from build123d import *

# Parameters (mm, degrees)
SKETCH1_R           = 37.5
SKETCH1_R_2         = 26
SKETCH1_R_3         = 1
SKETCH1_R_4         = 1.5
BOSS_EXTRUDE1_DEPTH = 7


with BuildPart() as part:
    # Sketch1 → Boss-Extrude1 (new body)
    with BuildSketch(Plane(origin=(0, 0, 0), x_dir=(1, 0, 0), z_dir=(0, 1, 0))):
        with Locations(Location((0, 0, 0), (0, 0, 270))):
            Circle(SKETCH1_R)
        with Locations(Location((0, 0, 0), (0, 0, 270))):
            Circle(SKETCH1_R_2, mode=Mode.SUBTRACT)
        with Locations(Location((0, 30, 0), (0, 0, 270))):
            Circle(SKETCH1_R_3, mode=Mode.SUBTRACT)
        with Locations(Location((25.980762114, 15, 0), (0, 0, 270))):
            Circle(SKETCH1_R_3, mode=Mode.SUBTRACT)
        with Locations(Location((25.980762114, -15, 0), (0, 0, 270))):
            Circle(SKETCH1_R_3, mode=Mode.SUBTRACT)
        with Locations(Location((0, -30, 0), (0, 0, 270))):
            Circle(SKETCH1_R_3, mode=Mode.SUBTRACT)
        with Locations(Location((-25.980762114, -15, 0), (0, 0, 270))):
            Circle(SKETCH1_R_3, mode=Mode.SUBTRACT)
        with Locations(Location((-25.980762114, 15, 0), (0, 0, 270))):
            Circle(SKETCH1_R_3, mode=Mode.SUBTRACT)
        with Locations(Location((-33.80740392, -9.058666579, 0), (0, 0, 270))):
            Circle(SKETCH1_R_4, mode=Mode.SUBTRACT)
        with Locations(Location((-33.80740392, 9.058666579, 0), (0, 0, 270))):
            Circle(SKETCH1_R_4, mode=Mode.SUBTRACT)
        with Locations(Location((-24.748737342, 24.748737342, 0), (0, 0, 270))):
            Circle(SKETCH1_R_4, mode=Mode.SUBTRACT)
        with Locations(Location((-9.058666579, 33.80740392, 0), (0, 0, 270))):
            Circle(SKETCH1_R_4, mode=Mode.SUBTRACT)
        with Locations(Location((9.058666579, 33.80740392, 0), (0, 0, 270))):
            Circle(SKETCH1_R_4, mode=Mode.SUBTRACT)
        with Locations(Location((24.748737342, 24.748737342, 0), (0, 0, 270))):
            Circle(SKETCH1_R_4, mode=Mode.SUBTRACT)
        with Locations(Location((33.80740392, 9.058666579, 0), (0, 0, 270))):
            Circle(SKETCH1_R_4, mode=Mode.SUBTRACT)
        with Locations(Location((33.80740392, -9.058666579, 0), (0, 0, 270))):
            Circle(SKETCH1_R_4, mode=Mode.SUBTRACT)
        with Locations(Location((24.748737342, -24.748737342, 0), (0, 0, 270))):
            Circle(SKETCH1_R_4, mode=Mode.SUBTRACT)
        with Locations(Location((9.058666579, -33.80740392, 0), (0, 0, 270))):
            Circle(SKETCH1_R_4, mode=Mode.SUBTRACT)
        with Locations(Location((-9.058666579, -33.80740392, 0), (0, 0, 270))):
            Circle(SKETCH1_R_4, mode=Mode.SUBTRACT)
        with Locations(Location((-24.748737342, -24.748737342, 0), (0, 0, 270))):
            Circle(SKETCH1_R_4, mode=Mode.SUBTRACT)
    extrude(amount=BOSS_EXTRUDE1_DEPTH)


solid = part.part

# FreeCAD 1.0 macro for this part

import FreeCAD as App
import Part
import Sketcher

V = App.Vector
Q = App.Units.Quantity

doc = App.newDocument("Part")
body = doc.addObject("PartDesign::Body", "Body")

# Sketch on XZ plane
sketch1 = body.newObject("Sketcher::SketchObject", "Sketch")
sketch1.AttachmentSupport = (doc.getObject("XZ_Plane"), [""])
sketch1.MapMode = "FlatFace"
sketch1.addGeometry(Part.Circle(V(0, 0, 0), V(0, 0, 1), 37.5), False)
sketch1.addGeometry(Part.Circle(V(-24.7, -24.7, 0), V(0, 0, 1), 1.5), False)
sketch1.addGeometry(Part.Circle(V(-33.8, -9.1, 0), V(0, 0, 1), 1.5), False)
sketch1.addGeometry(Part.Circle(V(-26, -15, 0), V(0, 0, 1), 1), False)
sketch1.addGeometry(Part.Circle(V(-9.1, -33.8, 0), V(0, 0, 1), 1.5), False)
sketch1.addGeometry(Part.Circle(V(0, -30, 0), V(0, 0, 1), 1), False)
sketch1.addGeometry(Part.Circle(V(-33.8, 9.1, 0), V(0, 0, 1), 1.5), False)
sketch1.addGeometry(Part.Circle(V(-26, 15, 0), V(0, 0, 1), 1), False)
sketch1.addGeometry(Part.Circle(V(-24.7, 24.7, 0), V(0, 0, 1), 1.5), False)
sketch1.addGeometry(Part.Circle(V(-9.1, 33.8, 0), V(0, 0, 1), 1.5), False)
sketch1.addGeometry(Part.Circle(V(9.1, -33.8, 0), V(0, 0, 1), 1.5), False)
sketch1.addGeometry(Part.Circle(V(24.7, -24.7, 0), V(0, 0, 1), 1.5), False)
sketch1.addGeometry(Part.Circle(V(26, -15, 0), V(0, 0, 1), 1), False)
sketch1.addGeometry(Part.Circle(V(33.8, -9.1, 0), V(0, 0, 1), 1.5), False)
sketch1.addGeometry(Part.Circle(V(0, 0, 0), V(0, 0, 1), 26), False)
sketch1.addGeometry(Part.Circle(V(0, 30, 0), V(0, 0, 1), 1), False)
sketch1.addGeometry(Part.Circle(V(9.1, 33.8, 0), V(0, 0, 1), 1.5), False)
sketch1.addGeometry(Part.Circle(V(26, 15, 0), V(0, 0, 1), 1), False)
sketch1.addGeometry(Part.Circle(V(33.8, 9.1, 0), V(0, 0, 1), 1.5), False)
sketch1.addGeometry(Part.Circle(V(24.7, 24.7, 0), V(0, 0, 1), 1.5), False)
sketch1.addConstraint(Sketcher.Constraint("Coincident", 0, 3, -1, 1))
sketch1.addConstraint(Sketcher.Constraint("Coincident", 14, 3, -1, 1))
sketch1.addConstraint(Sketcher.Constraint("Equal", 1, 2))
sketch1.addConstraint(Sketcher.Constraint("Equal", 2, 4))
sketch1.addConstraint(Sketcher.Constraint("Equal", 3, 5))
sketch1.addConstraint(Sketcher.Constraint("Equal", 4, 6))
sketch1.addConstraint(Sketcher.Constraint("Equal", 5, 7))
sketch1.addConstraint(Sketcher.Constraint("Equal", 6, 8))
sketch1.addConstraint(Sketcher.Constraint("Equal", 8, 9))
sketch1.addConstraint(Sketcher.Constraint("Equal", 9, 10))
sketch1.addConstraint(Sketcher.Constraint("Equal", 10, 11))
sketch1.addConstraint(Sketcher.Constraint("Equal", 7, 12))
sketch1.addConstraint(Sketcher.Constraint("Equal", 11, 13))
sketch1.addConstraint(Sketcher.Constraint("Equal", 12, 15))
sketch1.addConstraint(Sketcher.Constraint("Equal", 13, 16))
sketch1.addConstraint(Sketcher.Constraint("Equal", 15, 17))
sketch1.addConstraint(Sketcher.Constraint("Equal", 16, 18))
sketch1.addConstraint(Sketcher.Constraint("Equal", 18, 19))
sketch1.addConstraint(Sketcher.Constraint("Symmetric", 9, 3, 10, 3, -1, 1))
sketch1.addConstraint(Sketcher.Constraint("Symmetric", 8, 3, 11, 3, -1, 1))
sketch1.addConstraint(Sketcher.Constraint("Symmetric", 7, 3, 12, 3, -1, 1))
sketch1.addConstraint(Sketcher.Constraint("Symmetric", 6, 3, 13, 3, -1, 1))
sketch1.addConstraint(Sketcher.Constraint("Symmetric", 5, 3, 15, 3, -1, 1))
sketch1.addConstraint(Sketcher.Constraint("Symmetric", 4, 3, 16, 3, -1, 1))
sketch1.addConstraint(Sketcher.Constraint("Symmetric", 3, 3, 17, 3, -1, 1))
sketch1.addConstraint(Sketcher.Constraint("Symmetric", 2, 3, 18, 3, -1, 1))
sketch1.addConstraint(Sketcher.Constraint("Symmetric", 1, 3, 19, 3, -1, 1))
sketch1.addConstraint(Sketcher.Constraint("Symmetric", 4, 3, 10, 3, -2))
sketch1.addConstraint(Sketcher.Constraint("Symmetric", 1, 3, 11, 3, -2))
sketch1.addConstraint(Sketcher.Constraint("Symmetric", 3, 3, 12, 3, -2))
sketch1.addConstraint(Sketcher.Constraint("Symmetric", 2, 3, 13, 3, -2))
sketch1.addConstraint(Sketcher.Constraint("PointOnObject", 5, 3, -2))
sketch1.addConstraint(Sketcher.Constraint("Diameter", 0, Q("75 mm")))
sketch1.addConstraint(Sketcher.Constraint("Diameter", 1, Q("3 mm")))
sketch1.addConstraint(Sketcher.Constraint("Diameter", 3, Q("2 mm")))
sketch1.addConstraint(Sketcher.Constraint("Diameter", 14, Q("52 mm")))
sketch1.addConstraint(Sketcher.Constraint("DistanceY", 3, 3, -1, 1, Q("15 mm")))
sketch1.addConstraint(Sketcher.Constraint("DistanceY", 5, 3, -1, 1, Q("30 mm")))
sketch1.addConstraint(Sketcher.Constraint("DistanceY", 1, 3, 2, 3, Q("15.690071 mm")))
sketch1.addConstraint(Sketcher.Constraint("DistanceX", 2, 3, 3, 3, Q("7.826642 mm")))
sketch1.addConstraint(Sketcher.Constraint("DistanceX", 1, 3, 4, 3, Q("15.690071 mm")))
sketch1.addConstraint(Sketcher.Constraint("DistanceY", 4, 3, 6, 3, Q("42.86607 mm")))
sketch1.addConstraint(Sketcher.Constraint("DistanceX", 3, 3, 10, 3, Q("35.039429 mm")))
sketch1.addConstraint(Sketcher.Constraint("DistanceX", 1, 3, -1, 1, Q("24.748737 mm")))
sketch1.addConstraint(Sketcher.Constraint("DistanceY", 1, 3, -1, 1, Q("24.748737 mm")))
pad1 = body.newObject("PartDesign::Pad", "Pad")
pad1.Profile = sketch1
pad1.Length = 7
pad1.Reversed = True

doc.recompute()
